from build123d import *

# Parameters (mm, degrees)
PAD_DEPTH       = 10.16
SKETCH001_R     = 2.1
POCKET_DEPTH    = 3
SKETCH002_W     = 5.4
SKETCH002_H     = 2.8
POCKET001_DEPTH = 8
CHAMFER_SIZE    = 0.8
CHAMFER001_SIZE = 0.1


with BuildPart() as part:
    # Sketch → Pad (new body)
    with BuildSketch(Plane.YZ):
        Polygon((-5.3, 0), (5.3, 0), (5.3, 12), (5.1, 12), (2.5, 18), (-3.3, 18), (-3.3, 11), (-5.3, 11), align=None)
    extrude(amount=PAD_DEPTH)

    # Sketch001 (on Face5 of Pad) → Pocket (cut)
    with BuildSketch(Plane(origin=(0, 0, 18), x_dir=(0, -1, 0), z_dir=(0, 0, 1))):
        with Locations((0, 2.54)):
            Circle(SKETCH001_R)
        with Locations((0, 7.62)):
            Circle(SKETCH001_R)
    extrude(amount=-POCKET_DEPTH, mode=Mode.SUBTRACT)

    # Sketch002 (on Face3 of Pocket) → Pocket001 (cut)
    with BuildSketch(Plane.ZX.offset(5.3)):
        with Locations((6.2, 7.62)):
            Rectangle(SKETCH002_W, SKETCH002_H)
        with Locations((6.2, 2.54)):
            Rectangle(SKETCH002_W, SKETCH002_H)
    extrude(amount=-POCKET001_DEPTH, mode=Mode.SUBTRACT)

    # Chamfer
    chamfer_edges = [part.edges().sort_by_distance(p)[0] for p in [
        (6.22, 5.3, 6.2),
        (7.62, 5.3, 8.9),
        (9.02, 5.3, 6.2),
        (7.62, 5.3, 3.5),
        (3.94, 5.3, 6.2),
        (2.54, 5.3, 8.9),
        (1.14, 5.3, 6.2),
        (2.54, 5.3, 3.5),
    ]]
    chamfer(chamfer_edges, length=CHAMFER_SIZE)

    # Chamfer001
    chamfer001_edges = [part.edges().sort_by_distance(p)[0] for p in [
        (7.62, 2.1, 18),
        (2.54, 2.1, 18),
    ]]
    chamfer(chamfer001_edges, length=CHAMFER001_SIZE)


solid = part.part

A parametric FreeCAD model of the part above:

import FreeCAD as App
import Part
import Sketcher
from FreeCAD import Vector
Q = App.Units.Quantity


def edges_at(feature, points):
    """Names of the edges that pass closest to the given points."""
    edges = feature.Shape.Edges
    near = lambda p: min(range(len(edges)), key=lambda i: edges[i].distToShape(Part.Vertex(*p))[0])
    return sorted({f"Edge{near(p) + 1}" for p in points})


def add_polygon(sketch, points):
    """Adds a closed chain of lines whose ends are joined by coincident constraints."""
    first, n = sketch.GeometryCount, len(points)
    for a, b in zip(points, points[1:] + points[:1]):
        sketch.addGeometry(Part.LineSegment(App.Vector(*a, 0), App.Vector(*b, 0)), False)
    for i in range(n):
        sketch.addConstraint(Sketcher.Constraint("Coincident", first + i, 2, first + (i + 1) % n, 1))

doc = App.newDocument("Part")
body = doc.addObject("PartDesign::Body", "Body")

# Sketch on YZ plane
sketch1 = body.newObject("Sketcher::SketchObject", "Sketch")
sketch1.AttachmentSupport = (doc.getObject("YZ_Plane"), [""])
sketch1.MapMode = "FlatFace"
add_polygon(sketch1, [(-5.3, 0), (5.3, 0), (5.3, 12), (5.1, 12), (2.5, 18), (-3.3, 18), (-3.3, 11), (-5.3, 11)])  # lines 0-7
sketch1.addConstraint([
    Sketcher.Constraint("Horizontal", 0),
    Sketcher.Constraint("Vertical", 1),
    Sketcher.Constraint("Horizontal", 2),
    Sketcher.Constraint("Horizontal", 4),
    Sketcher.Constraint("Vertical", 5),
    Sketcher.Constraint("Horizontal", 6),
    Sketcher.Constraint("Vertical", 7),
    Sketcher.Constraint("Symmetric", 0, 2, 7, 2, -1, 1),
    Sketcher.Constraint("DistanceX", 6, 2, 6, 1, Q("2 mm")),
    Sketcher.Constraint("DistanceY", 1, 1, 1, 2, Q("12 mm")),
    Sketcher.Constraint("DistanceY", 5, 2, 5, 1, Q("7 mm")),
    Sketcher.Constraint("DistanceY", 7, 2, 7, 1, Q("11 mm")),
    Sketcher.Constraint("DistanceX", 0, 1, 0, 2, Q("10.6 mm")),
    Sketcher.Constraint("DistanceX", 2, 2, 2, 1, Q("0.2 mm")),
    Sketcher.Constraint("DistanceX", 4, 2, 4, 1, Q("5.8 mm")),
])
pad1 = body.newObject("PartDesign::Pad", "Pad")
pad1.Profile = sketch1
pad1.Length = 10.16

# Sketch on XY plane
sketch2 = body.newObject("Sketcher::SketchObject", "Sketch001")
sketch2.AttachmentSupport = (doc.getObject("XY_Plane"), [""])
sketch2.MapMode = "FlatFace"
sketch2.AttachmentOffset = App.Placement(Vector(0, 0, 18), App.Rotation())
sketch2.addGeometry([
    Part.Circle(Vector(2.5, 0, 0), Vector(0, 0, 1), 2.1),
    Part.Circle(Vector(7.6, 0, 0), Vector(0, 0, 1), 2.1),
], False)
sketch2.addConstraint([
    Sketcher.Constraint("Equal", 0, 1),
    Sketcher.Constraint("PointOnObject", 0, 3, -1),
    Sketcher.Constraint("PointOnObject", 1, 3, -1),
    Sketcher.Constraint("Diameter", 0, Q("4.2 mm")),
    Sketcher.Constraint("DistanceX", -1, 1, 0, 3, Q("2.54 mm")),
    Sketcher.Constraint("DistanceX", -1, 1, 1, 3, Q("7.62 mm")),
])
pocket1 = body.newObject("PartDesign::Pocket", "Pocket")
pocket1.Profile = sketch2
pocket1.Length = 3

# Sketch on XZ plane
sketch3 = body.newObject("Sketcher::SketchObject", "Sketch002")
sketch3.AttachmentSupport = (doc.getObject("XZ_Plane"), [""])
sketch3.MapMode = "FlatFace"
sketch3.AttachmentOffset = App.Placement(Vector(0, 0, -5.3), App.Rotation())
add_polygon(sketch3, [(9, 3.5), (6.2, 3.5), (6.2, 8.9), (9, 8.9)])  # lines 0-3
add_polygon(sketch3, [(3.9, 3.5), (1.1, 3.5), (1.1, 8.9), (3.9, 8.9)])  # lines 4-7
sketch3.addConstraint([
    Sketcher.Constraint("Horizontal", 0),
    Sketcher.Constraint("Vertical", 1),
    Sketcher.Constraint("Horizontal", 2),
    Sketcher.Constraint("Vertical", 3),
    Sketcher.Constraint("Horizontal", 4),
    Sketcher.Constraint("Vertical", 5),
    Sketcher.Constraint("Horizontal", 6),
    Sketcher.Constraint("Vertical", 7),
    Sketcher.Constraint("Horizontal", 3, 2, 4, 2),
    Sketcher.Constraint("Horizontal", 2, 2, 5, 2),
    Sketcher.Constraint("Equal", 2, 4),
    Sketcher.Constraint("DistanceX", 0, 2, 0, 1, Q("2.8 mm")),
    Sketcher.Constraint("DistanceY", 1, 1, 1, 2, Q("5.4 mm")),
    Sketcher.Constraint("DistanceY", -1, 1, 0, 2, Q("3.5 mm")),
    Sketcher.Constraint("DistanceX", -1, 1, 0, 2, Q("6.22 mm")),
    Sketcher.Constraint("DistanceX", -1, 1, 4, 2, Q("1.14 mm")),
])
pocket2 = body.newObject("PartDesign::Pocket", "Pocket001")
pocket2.Profile = sketch3
pocket2.Length = 8
pocket2.Reversed = True
doc.recompute()

chamfer = body.newObject("PartDesign::Chamfer", "Chamfer")
chamfer.Base = (pocket2, edges_at(pocket2, [
    (6.22, 5.3, 6.2),
    (7.62, 5.3, 8.9),
    (9.02, 5.3, 6.2),
    (7.62, 5.3, 3.5),
    (3.94, 5.3, 6.2),
    (2.54, 5.3, 8.9),
    (1.14, 5.3, 6.2),
    (2.54, 5.3, 3.5),
]))
chamfer.Size = 0.8
doc.recompute()

chamfer2 = body.newObject("PartDesign::Chamfer", "Chamfer001")
chamfer2.Base = (chamfer, edges_at(chamfer, [(7.62, 2.1, 18), (2.54, 2.1, 18)]))
chamfer2.Size = 0.1

doc.recompute()
